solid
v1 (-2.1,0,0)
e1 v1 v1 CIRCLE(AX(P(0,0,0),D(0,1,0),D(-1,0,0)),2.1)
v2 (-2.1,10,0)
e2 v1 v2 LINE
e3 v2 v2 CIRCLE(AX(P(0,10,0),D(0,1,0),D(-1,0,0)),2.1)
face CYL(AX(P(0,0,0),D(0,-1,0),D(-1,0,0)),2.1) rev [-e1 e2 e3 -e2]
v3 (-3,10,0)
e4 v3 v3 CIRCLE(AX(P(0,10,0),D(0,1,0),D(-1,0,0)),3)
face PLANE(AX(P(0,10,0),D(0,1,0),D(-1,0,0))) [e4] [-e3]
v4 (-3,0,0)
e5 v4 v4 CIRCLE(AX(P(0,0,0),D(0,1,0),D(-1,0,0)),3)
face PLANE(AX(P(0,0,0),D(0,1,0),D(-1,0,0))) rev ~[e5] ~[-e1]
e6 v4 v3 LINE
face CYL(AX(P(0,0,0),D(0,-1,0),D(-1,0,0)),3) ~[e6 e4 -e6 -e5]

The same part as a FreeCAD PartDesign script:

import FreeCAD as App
import Part
import Sketcher

V = App.Vector
Q = App.Units.Quantity

doc = App.newDocument("Part")
body = doc.addObject("PartDesign::Body", "Body")

sketch1 = doc.addObject("Sketcher::SketchObject", "Sketch")
body.addObject(sketch1)
sketch1.AttachmentSupport = (doc.XZ_Plane, [""])
sketch1.MapMode = "FlatFace"
sketch1.addGeometry([
    Part.Circle(V(0, 0, 0), V(0, 0, 1), 3),
    Part.Circle(V(0, 0, 0), V(0, 0, 1), 2.1),
], False)
sketch1.addConstraint([
    Sketcher.Constraint("Coincident", 0, 3, -1, 1),
    Sketcher.Constraint("Coincident", 1, 3, -1, 1),
    Sketcher.Constraint("Diameter", 0, Q("6 mm")),
    Sketcher.Constraint("Diameter", 1, Q("4.2 mm")),
])
pad1 = doc.addObject("PartDesign::Pad", "Pad")
body.addObject(pad1)
pad1.Profile = sketch1
pad1.Length = 10
pad1.Reversed = True

doc.recompute()
